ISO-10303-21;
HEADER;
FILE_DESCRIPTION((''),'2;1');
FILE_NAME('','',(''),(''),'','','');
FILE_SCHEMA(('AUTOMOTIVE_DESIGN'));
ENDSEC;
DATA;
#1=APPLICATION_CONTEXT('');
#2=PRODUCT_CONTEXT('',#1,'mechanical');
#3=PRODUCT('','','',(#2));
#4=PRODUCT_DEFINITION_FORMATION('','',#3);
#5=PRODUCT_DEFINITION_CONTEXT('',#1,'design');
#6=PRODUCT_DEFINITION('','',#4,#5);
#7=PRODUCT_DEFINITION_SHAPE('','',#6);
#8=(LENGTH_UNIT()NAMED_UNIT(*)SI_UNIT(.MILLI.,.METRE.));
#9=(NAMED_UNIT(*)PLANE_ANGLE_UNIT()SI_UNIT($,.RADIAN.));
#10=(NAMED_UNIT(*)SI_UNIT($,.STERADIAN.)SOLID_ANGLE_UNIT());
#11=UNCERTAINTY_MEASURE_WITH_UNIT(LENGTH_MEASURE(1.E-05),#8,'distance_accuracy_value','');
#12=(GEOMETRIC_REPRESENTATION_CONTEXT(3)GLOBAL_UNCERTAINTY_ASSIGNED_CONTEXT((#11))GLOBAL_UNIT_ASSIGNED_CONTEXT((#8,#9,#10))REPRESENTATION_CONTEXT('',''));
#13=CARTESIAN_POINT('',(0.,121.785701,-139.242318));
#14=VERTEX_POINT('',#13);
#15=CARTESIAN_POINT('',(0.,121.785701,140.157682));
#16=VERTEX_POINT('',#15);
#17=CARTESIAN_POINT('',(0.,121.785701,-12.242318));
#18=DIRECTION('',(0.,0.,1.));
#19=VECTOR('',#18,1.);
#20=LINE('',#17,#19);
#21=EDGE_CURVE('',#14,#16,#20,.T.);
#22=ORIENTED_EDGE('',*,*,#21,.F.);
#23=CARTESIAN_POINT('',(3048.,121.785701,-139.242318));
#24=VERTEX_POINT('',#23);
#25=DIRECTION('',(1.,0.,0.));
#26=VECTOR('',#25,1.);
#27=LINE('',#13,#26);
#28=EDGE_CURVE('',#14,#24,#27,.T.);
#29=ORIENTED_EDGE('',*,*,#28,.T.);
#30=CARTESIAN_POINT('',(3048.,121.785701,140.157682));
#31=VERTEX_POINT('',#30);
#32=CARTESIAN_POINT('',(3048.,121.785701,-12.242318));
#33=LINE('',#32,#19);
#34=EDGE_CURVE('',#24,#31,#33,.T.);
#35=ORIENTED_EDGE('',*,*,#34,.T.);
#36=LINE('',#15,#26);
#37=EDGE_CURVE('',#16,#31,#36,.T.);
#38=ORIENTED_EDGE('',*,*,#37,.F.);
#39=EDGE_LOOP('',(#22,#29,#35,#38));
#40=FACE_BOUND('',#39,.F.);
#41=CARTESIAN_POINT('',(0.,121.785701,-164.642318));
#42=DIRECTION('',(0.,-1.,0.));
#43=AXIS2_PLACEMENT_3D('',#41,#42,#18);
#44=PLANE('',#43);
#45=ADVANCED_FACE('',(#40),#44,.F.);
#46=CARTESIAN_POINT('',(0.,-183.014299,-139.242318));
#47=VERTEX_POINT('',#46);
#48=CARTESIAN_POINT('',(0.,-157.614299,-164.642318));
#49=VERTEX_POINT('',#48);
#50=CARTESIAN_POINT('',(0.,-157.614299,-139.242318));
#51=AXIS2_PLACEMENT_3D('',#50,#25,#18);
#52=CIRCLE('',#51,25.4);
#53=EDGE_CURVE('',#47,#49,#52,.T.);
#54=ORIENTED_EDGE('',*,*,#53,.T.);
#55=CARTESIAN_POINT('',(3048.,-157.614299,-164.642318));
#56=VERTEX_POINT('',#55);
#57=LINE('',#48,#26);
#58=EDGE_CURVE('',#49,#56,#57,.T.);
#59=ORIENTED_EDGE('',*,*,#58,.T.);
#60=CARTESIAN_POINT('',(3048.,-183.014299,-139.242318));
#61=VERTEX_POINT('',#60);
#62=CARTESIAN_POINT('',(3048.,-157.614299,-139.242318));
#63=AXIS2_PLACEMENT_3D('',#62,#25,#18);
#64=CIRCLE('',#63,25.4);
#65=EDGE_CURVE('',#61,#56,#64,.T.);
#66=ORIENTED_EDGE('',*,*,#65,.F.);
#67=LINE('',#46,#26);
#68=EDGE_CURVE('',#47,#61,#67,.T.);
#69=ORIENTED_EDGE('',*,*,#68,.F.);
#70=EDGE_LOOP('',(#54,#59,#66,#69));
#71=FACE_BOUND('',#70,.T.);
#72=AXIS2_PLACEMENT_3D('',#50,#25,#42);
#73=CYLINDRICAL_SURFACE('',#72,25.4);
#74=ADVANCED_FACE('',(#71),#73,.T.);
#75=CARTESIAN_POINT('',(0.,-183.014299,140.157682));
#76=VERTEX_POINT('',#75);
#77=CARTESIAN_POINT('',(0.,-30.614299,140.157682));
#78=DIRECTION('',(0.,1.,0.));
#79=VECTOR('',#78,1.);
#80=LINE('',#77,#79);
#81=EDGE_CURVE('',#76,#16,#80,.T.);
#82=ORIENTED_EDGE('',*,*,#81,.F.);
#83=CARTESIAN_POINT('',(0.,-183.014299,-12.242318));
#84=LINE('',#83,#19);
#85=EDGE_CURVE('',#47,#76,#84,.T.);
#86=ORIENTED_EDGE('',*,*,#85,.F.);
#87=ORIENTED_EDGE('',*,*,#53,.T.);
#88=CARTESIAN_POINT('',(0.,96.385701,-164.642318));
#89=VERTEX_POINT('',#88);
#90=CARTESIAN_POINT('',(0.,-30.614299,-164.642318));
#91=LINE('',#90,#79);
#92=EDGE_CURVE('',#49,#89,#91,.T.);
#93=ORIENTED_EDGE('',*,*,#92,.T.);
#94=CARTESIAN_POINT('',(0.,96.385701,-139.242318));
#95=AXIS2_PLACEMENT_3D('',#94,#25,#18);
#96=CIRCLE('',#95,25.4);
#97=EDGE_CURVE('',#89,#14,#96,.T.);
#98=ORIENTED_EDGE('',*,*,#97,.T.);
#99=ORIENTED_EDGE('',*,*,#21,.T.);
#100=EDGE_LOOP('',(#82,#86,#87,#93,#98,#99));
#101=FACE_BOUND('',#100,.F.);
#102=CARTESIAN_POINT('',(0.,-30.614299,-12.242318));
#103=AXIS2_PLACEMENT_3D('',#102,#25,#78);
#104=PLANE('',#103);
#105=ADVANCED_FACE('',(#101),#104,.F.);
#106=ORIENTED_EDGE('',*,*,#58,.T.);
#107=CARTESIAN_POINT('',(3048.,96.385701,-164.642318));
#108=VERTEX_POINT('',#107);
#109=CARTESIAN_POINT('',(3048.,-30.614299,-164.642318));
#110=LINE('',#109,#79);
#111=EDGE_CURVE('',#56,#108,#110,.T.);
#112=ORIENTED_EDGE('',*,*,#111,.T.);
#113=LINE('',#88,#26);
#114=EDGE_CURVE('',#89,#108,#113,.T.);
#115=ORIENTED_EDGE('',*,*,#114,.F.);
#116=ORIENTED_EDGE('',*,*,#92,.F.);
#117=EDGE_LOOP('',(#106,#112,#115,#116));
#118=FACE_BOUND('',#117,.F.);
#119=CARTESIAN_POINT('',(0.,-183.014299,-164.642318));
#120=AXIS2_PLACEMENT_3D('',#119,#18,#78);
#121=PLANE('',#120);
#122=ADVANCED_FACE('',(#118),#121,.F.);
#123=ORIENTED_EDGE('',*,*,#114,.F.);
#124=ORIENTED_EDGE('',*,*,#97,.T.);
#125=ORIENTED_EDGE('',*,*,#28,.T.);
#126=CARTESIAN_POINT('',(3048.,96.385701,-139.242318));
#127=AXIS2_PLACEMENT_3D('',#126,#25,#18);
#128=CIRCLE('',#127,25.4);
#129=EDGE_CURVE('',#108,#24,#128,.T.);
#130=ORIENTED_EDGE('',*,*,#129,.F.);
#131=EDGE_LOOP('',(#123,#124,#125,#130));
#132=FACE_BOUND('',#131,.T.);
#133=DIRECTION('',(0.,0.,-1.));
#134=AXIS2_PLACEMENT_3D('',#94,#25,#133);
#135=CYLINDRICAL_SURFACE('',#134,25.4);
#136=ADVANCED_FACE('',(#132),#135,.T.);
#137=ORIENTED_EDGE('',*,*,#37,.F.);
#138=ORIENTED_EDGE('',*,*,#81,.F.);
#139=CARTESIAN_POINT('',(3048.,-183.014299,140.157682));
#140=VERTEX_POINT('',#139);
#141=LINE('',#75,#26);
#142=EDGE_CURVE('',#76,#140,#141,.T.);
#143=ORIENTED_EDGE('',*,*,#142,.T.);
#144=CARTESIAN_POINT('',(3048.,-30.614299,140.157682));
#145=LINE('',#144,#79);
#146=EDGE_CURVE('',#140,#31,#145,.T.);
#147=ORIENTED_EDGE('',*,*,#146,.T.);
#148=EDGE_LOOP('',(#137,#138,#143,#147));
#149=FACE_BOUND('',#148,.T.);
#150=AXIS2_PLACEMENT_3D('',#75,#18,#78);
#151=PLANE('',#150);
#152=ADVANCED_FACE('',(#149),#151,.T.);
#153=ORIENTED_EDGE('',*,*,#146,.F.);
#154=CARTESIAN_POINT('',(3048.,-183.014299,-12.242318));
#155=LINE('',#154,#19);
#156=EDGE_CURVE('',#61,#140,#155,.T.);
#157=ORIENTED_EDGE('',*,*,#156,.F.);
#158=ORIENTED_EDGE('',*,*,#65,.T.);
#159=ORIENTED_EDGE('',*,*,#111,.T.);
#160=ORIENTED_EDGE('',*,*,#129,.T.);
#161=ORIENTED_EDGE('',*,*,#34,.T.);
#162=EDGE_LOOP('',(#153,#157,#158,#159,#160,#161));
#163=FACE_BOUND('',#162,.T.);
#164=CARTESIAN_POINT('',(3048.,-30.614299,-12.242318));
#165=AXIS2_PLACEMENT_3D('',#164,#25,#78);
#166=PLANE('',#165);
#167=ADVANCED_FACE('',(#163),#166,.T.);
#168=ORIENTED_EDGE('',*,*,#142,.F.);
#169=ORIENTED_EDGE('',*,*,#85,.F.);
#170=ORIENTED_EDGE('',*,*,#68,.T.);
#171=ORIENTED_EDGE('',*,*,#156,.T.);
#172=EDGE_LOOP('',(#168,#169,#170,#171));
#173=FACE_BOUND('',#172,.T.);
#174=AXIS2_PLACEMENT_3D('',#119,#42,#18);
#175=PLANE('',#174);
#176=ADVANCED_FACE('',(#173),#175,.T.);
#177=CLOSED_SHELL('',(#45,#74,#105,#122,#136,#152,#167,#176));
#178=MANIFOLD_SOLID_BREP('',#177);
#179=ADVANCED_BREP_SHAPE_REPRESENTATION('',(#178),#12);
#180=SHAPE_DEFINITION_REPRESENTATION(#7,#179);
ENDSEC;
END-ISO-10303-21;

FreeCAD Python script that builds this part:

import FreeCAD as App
import Part
import Sketcher
from FreeCAD import Vector
Q = App.Units.Quantity


def edges_at(feature, points):
    """Names of the edges that pass closest to the given points."""
    edges = feature.Shape.Edges
    near = lambda p: min(range(len(edges)), key=lambda i: edges[i].distToShape(Part.Vertex(*p))[0])
    return sorted({f"Edge{near(p) + 1}" for p in points})

doc = App.newDocument("Part")
body = doc.addObject("PartDesign::Body", "Body")

# Sketch on YZ plane
sketch1 = doc.addObject("Sketcher::SketchObject", "Sketch")
body.addObject(sketch1)
sketch1.AttachmentSupport = (doc.YZ_Plane, [""])
sketch1.MapMode = "FlatFace"
sketch1.addGeometry(Part.LineSegment(Vector(-183, 140, 0), Vector(-183, -165, 0)), False)
sketch1.addGeometry(Part.LineSegment(Vector(-183, -165, 0), Vector(122, -165, 0)), False)
sketch1.addGeometry(Part.LineSegment(Vector(122, -165, 0), Vector(122, 140, 0)), False)
sketch1.addGeometry(Part.LineSegment(Vector(122, 140, 0), Vector(-183, 140, 0)), False)
sketch1.addConstraint(Sketcher.Constraint("Coincident", 0, 2, 1, 1))
sketch1.addConstraint(Sketcher.Constraint("Coincident", 1, 2, 2, 1))
sketch1.addConstraint(Sketcher.Constraint("Coincident", 2, 2, 3, 1))
sketch1.addConstraint(Sketcher.Constraint("Coincident", 3, 2, 0, 1))
sketch1.addConstraint(Sketcher.Constraint("Vertical", 0))
sketch1.addConstraint(Sketcher.Constraint("Horizontal", 1))
sketch1.addConstraint(Sketcher.Constraint("Vertical", 2))
sketch1.addConstraint(Sketcher.Constraint("Horizontal", 3))
sketch1.addConstraint(Sketcher.Constraint("Equal", 3, 0))
sketch1.addConstraint(Sketcher.Constraint("DistanceX", 1, 1, 1, 2, Q("12 in")))
sketch1.addConstraint(Sketcher.Constraint("DistanceX", 0, 2, -1, 1, 183.014299))
sketch1.addConstraint(Sketcher.Constraint("DistanceY", -1, 1, 2, 2, 140.157682))
pad1 = doc.addObject("PartDesign::Pad", "Pad")
body.addObject(pad1)
pad1.Profile = sketch1
pad1.Length = Q("120 in")
doc.recompute()

fillet = doc.addObject("PartDesign::Fillet", "Fillet")
body.addObject(fillet)
fillet.Base = (pad1, edges_at(pad1, [(1524, -183.014, -164.642), (1524, 121.786, -164.642)]))
fillet.Radius = Q("1 in")

doc.recompute()
